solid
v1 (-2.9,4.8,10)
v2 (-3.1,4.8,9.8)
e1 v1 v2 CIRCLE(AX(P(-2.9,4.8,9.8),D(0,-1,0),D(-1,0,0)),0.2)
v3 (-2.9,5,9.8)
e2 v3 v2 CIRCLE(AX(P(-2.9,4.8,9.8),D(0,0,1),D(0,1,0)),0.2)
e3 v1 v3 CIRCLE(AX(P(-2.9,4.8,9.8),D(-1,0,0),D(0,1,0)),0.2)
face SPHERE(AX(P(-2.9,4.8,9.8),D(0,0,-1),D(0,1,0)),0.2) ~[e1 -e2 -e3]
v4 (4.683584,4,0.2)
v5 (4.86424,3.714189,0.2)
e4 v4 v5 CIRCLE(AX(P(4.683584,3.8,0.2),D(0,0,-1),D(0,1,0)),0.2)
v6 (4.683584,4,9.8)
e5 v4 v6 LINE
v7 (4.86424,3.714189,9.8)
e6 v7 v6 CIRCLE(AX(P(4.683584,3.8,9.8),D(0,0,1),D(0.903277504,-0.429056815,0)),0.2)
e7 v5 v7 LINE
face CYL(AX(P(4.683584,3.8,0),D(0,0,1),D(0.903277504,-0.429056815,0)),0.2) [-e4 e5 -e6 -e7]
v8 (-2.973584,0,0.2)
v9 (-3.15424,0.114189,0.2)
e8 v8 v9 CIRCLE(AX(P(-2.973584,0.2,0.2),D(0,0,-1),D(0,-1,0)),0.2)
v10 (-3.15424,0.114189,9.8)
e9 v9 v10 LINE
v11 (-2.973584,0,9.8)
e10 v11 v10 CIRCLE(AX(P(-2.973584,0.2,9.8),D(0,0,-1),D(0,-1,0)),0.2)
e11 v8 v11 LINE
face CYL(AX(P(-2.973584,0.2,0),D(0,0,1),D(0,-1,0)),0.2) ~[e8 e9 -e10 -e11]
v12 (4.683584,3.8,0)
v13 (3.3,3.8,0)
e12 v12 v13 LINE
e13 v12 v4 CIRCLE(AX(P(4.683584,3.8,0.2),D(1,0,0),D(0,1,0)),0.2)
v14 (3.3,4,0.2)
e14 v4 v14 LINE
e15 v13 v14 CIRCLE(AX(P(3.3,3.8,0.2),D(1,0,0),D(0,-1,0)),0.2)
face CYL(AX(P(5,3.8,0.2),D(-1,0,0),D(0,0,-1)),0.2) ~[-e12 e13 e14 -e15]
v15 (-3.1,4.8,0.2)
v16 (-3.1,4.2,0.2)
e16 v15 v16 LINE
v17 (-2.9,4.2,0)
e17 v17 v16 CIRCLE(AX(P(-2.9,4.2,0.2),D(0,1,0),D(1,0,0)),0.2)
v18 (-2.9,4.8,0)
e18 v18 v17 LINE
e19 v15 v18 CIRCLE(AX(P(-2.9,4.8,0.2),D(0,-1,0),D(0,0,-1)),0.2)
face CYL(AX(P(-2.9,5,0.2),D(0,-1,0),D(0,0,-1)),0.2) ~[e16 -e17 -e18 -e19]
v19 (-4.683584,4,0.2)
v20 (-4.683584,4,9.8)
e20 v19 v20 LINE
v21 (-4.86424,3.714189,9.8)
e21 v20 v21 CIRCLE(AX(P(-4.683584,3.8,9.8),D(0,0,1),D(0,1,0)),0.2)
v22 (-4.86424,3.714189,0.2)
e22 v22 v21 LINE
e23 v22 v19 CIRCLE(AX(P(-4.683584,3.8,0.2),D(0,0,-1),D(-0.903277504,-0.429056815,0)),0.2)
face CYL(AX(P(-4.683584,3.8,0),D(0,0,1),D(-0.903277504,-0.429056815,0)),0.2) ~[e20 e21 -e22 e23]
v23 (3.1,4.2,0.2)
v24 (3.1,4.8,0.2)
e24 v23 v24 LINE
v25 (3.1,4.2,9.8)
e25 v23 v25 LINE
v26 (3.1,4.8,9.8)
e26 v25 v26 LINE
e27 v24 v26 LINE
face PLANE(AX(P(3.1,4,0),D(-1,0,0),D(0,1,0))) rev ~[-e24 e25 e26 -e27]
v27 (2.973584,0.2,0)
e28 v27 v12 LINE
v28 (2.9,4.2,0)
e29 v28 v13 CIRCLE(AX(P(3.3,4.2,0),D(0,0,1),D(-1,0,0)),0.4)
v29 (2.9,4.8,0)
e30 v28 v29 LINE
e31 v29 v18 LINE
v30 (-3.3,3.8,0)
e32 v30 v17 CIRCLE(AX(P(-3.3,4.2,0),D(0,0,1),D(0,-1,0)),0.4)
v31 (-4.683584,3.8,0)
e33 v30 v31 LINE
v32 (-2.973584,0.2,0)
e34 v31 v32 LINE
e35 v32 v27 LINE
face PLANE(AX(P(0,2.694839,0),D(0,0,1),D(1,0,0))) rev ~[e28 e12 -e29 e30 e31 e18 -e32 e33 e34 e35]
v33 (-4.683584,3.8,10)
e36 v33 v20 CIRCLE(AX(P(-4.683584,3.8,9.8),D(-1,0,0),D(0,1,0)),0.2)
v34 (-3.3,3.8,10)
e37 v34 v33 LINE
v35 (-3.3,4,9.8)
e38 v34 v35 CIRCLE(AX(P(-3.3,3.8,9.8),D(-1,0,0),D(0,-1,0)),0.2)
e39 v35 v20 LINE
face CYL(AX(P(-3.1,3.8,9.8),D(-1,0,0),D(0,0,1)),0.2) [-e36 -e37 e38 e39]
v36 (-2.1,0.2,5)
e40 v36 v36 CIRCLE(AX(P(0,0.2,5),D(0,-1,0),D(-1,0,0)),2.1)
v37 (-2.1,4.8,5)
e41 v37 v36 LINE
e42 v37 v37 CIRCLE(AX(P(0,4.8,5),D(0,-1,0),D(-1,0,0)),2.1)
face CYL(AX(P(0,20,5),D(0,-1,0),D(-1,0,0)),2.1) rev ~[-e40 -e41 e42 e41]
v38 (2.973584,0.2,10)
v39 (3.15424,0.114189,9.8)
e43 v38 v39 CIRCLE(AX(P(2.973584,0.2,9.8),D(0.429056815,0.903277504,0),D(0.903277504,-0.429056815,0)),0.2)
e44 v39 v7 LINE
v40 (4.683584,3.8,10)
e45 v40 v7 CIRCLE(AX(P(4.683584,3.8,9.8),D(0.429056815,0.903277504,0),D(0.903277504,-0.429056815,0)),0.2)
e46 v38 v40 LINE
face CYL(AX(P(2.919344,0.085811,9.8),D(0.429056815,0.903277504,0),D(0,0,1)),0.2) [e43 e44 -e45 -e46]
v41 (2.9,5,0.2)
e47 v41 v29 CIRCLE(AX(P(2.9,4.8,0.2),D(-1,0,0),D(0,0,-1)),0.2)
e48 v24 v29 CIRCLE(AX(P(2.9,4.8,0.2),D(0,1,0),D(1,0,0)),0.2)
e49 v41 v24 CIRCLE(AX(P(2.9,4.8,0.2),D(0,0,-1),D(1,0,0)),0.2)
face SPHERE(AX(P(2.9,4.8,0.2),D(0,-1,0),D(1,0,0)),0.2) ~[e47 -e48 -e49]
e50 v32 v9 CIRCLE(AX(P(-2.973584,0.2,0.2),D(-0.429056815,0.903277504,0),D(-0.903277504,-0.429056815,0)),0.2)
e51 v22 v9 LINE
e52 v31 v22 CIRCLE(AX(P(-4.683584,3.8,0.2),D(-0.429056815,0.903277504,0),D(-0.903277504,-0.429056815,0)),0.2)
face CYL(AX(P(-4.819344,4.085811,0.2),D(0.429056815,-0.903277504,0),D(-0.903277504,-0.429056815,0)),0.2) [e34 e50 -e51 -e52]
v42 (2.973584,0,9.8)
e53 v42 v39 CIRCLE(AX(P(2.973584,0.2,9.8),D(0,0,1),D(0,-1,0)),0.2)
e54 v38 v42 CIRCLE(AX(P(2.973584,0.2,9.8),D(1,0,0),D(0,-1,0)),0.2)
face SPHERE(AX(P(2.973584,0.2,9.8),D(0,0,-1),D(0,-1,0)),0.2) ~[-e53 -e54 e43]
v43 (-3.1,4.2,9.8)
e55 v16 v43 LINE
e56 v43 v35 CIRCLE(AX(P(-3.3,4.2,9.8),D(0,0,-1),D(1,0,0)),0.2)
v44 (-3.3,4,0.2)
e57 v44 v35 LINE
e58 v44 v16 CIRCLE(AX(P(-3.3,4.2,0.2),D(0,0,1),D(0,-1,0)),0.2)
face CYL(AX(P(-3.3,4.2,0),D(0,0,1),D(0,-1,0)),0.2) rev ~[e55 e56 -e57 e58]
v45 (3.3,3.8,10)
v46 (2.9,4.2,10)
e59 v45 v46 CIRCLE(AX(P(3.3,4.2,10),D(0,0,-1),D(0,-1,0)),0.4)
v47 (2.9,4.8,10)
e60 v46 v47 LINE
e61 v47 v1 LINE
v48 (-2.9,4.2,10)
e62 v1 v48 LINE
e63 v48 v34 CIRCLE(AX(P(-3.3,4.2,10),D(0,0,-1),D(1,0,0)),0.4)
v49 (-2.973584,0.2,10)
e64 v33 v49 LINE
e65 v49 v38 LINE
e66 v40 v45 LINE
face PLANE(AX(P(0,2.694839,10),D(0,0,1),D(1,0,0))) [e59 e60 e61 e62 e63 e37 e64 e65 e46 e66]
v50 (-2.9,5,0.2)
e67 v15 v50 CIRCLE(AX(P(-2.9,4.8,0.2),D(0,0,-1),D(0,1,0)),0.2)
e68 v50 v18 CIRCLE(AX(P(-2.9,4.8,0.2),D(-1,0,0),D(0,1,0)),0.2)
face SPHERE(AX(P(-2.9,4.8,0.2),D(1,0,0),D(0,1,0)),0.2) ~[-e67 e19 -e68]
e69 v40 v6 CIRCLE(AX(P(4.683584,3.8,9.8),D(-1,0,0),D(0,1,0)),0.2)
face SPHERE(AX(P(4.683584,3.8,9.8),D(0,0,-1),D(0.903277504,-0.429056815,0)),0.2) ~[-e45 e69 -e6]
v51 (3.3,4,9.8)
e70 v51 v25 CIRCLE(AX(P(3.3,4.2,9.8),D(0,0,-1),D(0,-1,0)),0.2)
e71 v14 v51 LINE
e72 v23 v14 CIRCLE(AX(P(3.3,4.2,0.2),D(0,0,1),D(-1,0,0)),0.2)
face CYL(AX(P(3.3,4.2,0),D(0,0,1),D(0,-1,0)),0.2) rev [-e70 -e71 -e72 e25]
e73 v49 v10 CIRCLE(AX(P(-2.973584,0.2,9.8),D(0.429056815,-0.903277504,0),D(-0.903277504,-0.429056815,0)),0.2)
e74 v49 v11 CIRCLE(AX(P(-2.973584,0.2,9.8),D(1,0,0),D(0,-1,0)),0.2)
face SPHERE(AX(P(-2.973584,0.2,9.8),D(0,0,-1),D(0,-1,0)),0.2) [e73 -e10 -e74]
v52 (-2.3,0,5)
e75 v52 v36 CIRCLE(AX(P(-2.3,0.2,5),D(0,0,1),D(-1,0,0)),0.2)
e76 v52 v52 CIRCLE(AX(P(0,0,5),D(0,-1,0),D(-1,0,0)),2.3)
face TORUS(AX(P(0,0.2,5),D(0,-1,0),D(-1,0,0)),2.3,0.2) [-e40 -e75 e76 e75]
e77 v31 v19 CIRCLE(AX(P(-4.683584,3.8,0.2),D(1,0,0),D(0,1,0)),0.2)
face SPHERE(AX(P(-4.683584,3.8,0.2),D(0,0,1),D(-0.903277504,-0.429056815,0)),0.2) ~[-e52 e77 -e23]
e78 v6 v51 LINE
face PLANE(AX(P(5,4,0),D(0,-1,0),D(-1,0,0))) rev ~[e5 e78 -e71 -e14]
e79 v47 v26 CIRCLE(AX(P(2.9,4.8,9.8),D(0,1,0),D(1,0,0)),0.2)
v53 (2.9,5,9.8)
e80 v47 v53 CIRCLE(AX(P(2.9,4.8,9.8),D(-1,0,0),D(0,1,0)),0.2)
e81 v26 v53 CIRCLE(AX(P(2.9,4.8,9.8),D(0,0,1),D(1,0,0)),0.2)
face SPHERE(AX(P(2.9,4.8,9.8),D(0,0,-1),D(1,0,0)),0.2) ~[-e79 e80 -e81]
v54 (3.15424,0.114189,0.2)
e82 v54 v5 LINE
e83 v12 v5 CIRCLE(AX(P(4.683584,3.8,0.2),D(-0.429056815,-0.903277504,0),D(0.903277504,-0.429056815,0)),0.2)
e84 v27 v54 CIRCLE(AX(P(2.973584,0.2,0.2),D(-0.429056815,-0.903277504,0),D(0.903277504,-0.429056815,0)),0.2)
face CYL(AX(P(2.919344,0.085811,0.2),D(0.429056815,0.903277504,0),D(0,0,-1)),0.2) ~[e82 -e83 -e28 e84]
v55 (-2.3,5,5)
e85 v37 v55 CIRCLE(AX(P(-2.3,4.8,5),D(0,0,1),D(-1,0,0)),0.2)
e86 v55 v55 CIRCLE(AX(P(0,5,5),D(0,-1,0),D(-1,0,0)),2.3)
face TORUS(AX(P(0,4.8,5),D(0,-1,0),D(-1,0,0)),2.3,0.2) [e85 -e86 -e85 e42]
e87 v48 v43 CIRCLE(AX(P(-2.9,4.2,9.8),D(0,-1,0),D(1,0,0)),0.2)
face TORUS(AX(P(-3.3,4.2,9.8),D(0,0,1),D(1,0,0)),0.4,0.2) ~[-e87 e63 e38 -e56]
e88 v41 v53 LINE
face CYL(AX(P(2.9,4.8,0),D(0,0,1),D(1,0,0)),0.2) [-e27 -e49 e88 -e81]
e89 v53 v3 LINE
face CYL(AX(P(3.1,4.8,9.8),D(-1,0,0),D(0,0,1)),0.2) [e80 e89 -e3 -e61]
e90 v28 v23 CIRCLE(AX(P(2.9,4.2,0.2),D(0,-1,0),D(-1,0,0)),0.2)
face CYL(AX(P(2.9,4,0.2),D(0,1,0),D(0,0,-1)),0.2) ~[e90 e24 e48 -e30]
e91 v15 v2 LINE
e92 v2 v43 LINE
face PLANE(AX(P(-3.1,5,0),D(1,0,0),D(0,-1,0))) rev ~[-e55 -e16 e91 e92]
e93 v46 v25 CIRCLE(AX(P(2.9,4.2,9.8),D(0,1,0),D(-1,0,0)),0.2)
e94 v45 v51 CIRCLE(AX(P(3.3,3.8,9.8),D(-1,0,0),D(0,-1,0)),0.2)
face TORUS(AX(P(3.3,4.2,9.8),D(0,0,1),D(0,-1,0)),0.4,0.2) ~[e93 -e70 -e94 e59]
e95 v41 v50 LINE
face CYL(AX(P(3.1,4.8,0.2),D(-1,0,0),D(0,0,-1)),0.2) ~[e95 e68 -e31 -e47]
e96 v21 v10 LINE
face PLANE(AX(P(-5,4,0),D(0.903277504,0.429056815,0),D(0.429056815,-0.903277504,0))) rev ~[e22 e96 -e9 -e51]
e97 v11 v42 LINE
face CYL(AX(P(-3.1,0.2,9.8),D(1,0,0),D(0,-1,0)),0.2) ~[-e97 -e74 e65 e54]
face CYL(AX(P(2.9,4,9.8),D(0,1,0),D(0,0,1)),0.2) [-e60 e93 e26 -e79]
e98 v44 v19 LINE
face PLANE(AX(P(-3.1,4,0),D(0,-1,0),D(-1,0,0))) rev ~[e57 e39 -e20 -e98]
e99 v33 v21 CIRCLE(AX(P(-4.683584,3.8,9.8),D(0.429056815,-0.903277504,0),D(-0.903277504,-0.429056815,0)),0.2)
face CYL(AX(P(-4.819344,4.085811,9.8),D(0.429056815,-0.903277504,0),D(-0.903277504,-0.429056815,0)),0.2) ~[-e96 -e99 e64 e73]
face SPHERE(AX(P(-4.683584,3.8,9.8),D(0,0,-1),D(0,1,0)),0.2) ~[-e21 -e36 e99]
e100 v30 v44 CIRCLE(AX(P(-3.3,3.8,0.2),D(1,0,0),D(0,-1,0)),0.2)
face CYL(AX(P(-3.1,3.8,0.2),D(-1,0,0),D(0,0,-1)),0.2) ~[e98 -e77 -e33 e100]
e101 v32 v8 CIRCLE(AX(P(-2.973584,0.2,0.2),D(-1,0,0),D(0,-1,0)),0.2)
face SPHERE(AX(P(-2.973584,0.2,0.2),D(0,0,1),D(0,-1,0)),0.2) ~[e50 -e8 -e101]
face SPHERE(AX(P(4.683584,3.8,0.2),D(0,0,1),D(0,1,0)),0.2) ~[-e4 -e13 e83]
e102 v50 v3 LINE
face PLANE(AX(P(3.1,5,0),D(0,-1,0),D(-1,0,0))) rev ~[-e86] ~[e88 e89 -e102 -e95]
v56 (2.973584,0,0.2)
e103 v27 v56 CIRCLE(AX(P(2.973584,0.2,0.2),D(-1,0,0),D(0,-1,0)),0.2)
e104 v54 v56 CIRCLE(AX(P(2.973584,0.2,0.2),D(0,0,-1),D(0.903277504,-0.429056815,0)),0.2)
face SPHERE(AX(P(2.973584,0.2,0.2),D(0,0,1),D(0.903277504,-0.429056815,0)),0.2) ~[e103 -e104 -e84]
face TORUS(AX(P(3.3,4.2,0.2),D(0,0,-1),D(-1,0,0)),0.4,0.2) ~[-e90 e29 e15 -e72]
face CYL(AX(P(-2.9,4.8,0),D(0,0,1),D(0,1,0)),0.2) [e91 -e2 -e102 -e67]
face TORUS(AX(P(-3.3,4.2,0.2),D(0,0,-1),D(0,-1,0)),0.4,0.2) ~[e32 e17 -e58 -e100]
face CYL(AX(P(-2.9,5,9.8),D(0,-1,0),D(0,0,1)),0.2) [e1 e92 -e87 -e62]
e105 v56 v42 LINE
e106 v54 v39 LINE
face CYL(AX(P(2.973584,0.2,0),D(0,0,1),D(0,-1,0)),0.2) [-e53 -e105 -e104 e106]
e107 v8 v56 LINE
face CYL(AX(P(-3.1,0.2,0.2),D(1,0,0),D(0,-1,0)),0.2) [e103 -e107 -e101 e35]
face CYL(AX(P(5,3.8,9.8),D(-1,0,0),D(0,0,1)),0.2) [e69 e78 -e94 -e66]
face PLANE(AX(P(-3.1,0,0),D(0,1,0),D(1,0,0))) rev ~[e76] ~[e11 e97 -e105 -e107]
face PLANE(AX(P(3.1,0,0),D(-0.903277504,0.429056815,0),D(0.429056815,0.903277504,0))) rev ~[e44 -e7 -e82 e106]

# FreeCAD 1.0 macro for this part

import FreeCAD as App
import Part
import Sketcher
from FreeCAD import Vector


def add_polygon(sketch, points):
    """Adds a closed chain of lines whose ends are joined by coincident constraints."""
    first, n = sketch.GeometryCount, len(points)
    for a, b in zip(points, points[1:] + points[:1]):
        sketch.addGeometry(Part.LineSegment(App.Vector(*a, 0), App.Vector(*b, 0)), False)
    for i in range(n):
        sketch.addConstraint(Sketcher.Constraint("Coincident", first + i, 2, first + (i + 1) % n, 1))

doc = App.newDocument("Part")
body = doc.addObject("PartDesign::Body", "Body")

# Sketch on XY plane
sketch1 = body.newObject("Sketcher::SketchObject", "Sketch")
sketch1.AttachmentSupport = (doc.getObject("XY_Plane"), [""])
sketch1.MapMode = "FlatFace"
add_polygon(sketch1, [(-3.1, 0), (3.1, 0), (5, 4), (3.1, 4), (3.1, 5), (-3.1, 5), (-3.1, 4), (-5, 4)])  # lines 0-7
sketch1.addConstraint([
    Sketcher.Constraint("Horizontal", 0),
    Sketcher.Constraint("Horizontal", 2),
    Sketcher.Constraint("Vertical", 3),
    Sketcher.Constraint("Horizontal", 4),
    Sketcher.Constraint("Vertical", 5),
    Sketcher.Constraint("Horizontal", 6),
    Sketcher.Constraint("Symmetric", 0, 2, 7, 2, -1, 1),
    Sketcher.Constraint("Symmetric", 2, 2, 5, 2, -2),
    Sketcher.Constraint("Vertical", 0, 2, 2, 2),
    Sketcher.Constraint("Equal", 2, 6),
    Sketcher.Constraint("DistanceY", 3, 1, 3, 2, 1.0),
    Sketcher.Constraint("DistanceX", 0, 1, 0, 2, 6.2),
    Sketcher.Constraint("DistanceX", 2, 2, 2, 1, 1.9),
    Sketcher.Constraint("DistanceY", -1, 1, 1, 2, 4.0),
])
pad1 = body.newObject("PartDesign::Pad", "Pad")
pad1.Profile = sketch1
pad1.Length = 10

# Sketch on XZ plane
sketch2 = body.newObject("Sketcher::SketchObject", "Sketch001")
sketch2.AttachmentSupport = (doc.getObject("XZ_Plane"), [""])
sketch2.MapMode = "FlatFace"
sketch2.AttachmentOffset = App.Placement(Vector(0, 0, -5), App.Rotation())
sketch2.addGeometry(Part.Circle(Vector(0, 5, 0), Vector(0, 0, 1), 2.1), False)
sketch2.addConstraint([
    Sketcher.Constraint("PointOnObject", 0, 3, -2),
    Sketcher.Constraint("Diameter", 0, 4.2),
    Sketcher.Constraint("DistanceY", -1, 1, 0, 3, 5.0),
])
doc.recompute()
hole = body.newObject("PartDesign::Hole", "Hole")
hole.Profile = sketch2
hole.ThreadType = "None"
hole.Diameter = 4.2
hole.DepthType = "ThroughAll"
hole.Reversed = True
doc.recompute()

fillet = body.newObject("PartDesign::Fillet", "Fillet")
fillet.Base = (hole, ["Edge1"])
fillet.UseAllEdges = True
fillet.Radius = 0.2

doc.recompute()
